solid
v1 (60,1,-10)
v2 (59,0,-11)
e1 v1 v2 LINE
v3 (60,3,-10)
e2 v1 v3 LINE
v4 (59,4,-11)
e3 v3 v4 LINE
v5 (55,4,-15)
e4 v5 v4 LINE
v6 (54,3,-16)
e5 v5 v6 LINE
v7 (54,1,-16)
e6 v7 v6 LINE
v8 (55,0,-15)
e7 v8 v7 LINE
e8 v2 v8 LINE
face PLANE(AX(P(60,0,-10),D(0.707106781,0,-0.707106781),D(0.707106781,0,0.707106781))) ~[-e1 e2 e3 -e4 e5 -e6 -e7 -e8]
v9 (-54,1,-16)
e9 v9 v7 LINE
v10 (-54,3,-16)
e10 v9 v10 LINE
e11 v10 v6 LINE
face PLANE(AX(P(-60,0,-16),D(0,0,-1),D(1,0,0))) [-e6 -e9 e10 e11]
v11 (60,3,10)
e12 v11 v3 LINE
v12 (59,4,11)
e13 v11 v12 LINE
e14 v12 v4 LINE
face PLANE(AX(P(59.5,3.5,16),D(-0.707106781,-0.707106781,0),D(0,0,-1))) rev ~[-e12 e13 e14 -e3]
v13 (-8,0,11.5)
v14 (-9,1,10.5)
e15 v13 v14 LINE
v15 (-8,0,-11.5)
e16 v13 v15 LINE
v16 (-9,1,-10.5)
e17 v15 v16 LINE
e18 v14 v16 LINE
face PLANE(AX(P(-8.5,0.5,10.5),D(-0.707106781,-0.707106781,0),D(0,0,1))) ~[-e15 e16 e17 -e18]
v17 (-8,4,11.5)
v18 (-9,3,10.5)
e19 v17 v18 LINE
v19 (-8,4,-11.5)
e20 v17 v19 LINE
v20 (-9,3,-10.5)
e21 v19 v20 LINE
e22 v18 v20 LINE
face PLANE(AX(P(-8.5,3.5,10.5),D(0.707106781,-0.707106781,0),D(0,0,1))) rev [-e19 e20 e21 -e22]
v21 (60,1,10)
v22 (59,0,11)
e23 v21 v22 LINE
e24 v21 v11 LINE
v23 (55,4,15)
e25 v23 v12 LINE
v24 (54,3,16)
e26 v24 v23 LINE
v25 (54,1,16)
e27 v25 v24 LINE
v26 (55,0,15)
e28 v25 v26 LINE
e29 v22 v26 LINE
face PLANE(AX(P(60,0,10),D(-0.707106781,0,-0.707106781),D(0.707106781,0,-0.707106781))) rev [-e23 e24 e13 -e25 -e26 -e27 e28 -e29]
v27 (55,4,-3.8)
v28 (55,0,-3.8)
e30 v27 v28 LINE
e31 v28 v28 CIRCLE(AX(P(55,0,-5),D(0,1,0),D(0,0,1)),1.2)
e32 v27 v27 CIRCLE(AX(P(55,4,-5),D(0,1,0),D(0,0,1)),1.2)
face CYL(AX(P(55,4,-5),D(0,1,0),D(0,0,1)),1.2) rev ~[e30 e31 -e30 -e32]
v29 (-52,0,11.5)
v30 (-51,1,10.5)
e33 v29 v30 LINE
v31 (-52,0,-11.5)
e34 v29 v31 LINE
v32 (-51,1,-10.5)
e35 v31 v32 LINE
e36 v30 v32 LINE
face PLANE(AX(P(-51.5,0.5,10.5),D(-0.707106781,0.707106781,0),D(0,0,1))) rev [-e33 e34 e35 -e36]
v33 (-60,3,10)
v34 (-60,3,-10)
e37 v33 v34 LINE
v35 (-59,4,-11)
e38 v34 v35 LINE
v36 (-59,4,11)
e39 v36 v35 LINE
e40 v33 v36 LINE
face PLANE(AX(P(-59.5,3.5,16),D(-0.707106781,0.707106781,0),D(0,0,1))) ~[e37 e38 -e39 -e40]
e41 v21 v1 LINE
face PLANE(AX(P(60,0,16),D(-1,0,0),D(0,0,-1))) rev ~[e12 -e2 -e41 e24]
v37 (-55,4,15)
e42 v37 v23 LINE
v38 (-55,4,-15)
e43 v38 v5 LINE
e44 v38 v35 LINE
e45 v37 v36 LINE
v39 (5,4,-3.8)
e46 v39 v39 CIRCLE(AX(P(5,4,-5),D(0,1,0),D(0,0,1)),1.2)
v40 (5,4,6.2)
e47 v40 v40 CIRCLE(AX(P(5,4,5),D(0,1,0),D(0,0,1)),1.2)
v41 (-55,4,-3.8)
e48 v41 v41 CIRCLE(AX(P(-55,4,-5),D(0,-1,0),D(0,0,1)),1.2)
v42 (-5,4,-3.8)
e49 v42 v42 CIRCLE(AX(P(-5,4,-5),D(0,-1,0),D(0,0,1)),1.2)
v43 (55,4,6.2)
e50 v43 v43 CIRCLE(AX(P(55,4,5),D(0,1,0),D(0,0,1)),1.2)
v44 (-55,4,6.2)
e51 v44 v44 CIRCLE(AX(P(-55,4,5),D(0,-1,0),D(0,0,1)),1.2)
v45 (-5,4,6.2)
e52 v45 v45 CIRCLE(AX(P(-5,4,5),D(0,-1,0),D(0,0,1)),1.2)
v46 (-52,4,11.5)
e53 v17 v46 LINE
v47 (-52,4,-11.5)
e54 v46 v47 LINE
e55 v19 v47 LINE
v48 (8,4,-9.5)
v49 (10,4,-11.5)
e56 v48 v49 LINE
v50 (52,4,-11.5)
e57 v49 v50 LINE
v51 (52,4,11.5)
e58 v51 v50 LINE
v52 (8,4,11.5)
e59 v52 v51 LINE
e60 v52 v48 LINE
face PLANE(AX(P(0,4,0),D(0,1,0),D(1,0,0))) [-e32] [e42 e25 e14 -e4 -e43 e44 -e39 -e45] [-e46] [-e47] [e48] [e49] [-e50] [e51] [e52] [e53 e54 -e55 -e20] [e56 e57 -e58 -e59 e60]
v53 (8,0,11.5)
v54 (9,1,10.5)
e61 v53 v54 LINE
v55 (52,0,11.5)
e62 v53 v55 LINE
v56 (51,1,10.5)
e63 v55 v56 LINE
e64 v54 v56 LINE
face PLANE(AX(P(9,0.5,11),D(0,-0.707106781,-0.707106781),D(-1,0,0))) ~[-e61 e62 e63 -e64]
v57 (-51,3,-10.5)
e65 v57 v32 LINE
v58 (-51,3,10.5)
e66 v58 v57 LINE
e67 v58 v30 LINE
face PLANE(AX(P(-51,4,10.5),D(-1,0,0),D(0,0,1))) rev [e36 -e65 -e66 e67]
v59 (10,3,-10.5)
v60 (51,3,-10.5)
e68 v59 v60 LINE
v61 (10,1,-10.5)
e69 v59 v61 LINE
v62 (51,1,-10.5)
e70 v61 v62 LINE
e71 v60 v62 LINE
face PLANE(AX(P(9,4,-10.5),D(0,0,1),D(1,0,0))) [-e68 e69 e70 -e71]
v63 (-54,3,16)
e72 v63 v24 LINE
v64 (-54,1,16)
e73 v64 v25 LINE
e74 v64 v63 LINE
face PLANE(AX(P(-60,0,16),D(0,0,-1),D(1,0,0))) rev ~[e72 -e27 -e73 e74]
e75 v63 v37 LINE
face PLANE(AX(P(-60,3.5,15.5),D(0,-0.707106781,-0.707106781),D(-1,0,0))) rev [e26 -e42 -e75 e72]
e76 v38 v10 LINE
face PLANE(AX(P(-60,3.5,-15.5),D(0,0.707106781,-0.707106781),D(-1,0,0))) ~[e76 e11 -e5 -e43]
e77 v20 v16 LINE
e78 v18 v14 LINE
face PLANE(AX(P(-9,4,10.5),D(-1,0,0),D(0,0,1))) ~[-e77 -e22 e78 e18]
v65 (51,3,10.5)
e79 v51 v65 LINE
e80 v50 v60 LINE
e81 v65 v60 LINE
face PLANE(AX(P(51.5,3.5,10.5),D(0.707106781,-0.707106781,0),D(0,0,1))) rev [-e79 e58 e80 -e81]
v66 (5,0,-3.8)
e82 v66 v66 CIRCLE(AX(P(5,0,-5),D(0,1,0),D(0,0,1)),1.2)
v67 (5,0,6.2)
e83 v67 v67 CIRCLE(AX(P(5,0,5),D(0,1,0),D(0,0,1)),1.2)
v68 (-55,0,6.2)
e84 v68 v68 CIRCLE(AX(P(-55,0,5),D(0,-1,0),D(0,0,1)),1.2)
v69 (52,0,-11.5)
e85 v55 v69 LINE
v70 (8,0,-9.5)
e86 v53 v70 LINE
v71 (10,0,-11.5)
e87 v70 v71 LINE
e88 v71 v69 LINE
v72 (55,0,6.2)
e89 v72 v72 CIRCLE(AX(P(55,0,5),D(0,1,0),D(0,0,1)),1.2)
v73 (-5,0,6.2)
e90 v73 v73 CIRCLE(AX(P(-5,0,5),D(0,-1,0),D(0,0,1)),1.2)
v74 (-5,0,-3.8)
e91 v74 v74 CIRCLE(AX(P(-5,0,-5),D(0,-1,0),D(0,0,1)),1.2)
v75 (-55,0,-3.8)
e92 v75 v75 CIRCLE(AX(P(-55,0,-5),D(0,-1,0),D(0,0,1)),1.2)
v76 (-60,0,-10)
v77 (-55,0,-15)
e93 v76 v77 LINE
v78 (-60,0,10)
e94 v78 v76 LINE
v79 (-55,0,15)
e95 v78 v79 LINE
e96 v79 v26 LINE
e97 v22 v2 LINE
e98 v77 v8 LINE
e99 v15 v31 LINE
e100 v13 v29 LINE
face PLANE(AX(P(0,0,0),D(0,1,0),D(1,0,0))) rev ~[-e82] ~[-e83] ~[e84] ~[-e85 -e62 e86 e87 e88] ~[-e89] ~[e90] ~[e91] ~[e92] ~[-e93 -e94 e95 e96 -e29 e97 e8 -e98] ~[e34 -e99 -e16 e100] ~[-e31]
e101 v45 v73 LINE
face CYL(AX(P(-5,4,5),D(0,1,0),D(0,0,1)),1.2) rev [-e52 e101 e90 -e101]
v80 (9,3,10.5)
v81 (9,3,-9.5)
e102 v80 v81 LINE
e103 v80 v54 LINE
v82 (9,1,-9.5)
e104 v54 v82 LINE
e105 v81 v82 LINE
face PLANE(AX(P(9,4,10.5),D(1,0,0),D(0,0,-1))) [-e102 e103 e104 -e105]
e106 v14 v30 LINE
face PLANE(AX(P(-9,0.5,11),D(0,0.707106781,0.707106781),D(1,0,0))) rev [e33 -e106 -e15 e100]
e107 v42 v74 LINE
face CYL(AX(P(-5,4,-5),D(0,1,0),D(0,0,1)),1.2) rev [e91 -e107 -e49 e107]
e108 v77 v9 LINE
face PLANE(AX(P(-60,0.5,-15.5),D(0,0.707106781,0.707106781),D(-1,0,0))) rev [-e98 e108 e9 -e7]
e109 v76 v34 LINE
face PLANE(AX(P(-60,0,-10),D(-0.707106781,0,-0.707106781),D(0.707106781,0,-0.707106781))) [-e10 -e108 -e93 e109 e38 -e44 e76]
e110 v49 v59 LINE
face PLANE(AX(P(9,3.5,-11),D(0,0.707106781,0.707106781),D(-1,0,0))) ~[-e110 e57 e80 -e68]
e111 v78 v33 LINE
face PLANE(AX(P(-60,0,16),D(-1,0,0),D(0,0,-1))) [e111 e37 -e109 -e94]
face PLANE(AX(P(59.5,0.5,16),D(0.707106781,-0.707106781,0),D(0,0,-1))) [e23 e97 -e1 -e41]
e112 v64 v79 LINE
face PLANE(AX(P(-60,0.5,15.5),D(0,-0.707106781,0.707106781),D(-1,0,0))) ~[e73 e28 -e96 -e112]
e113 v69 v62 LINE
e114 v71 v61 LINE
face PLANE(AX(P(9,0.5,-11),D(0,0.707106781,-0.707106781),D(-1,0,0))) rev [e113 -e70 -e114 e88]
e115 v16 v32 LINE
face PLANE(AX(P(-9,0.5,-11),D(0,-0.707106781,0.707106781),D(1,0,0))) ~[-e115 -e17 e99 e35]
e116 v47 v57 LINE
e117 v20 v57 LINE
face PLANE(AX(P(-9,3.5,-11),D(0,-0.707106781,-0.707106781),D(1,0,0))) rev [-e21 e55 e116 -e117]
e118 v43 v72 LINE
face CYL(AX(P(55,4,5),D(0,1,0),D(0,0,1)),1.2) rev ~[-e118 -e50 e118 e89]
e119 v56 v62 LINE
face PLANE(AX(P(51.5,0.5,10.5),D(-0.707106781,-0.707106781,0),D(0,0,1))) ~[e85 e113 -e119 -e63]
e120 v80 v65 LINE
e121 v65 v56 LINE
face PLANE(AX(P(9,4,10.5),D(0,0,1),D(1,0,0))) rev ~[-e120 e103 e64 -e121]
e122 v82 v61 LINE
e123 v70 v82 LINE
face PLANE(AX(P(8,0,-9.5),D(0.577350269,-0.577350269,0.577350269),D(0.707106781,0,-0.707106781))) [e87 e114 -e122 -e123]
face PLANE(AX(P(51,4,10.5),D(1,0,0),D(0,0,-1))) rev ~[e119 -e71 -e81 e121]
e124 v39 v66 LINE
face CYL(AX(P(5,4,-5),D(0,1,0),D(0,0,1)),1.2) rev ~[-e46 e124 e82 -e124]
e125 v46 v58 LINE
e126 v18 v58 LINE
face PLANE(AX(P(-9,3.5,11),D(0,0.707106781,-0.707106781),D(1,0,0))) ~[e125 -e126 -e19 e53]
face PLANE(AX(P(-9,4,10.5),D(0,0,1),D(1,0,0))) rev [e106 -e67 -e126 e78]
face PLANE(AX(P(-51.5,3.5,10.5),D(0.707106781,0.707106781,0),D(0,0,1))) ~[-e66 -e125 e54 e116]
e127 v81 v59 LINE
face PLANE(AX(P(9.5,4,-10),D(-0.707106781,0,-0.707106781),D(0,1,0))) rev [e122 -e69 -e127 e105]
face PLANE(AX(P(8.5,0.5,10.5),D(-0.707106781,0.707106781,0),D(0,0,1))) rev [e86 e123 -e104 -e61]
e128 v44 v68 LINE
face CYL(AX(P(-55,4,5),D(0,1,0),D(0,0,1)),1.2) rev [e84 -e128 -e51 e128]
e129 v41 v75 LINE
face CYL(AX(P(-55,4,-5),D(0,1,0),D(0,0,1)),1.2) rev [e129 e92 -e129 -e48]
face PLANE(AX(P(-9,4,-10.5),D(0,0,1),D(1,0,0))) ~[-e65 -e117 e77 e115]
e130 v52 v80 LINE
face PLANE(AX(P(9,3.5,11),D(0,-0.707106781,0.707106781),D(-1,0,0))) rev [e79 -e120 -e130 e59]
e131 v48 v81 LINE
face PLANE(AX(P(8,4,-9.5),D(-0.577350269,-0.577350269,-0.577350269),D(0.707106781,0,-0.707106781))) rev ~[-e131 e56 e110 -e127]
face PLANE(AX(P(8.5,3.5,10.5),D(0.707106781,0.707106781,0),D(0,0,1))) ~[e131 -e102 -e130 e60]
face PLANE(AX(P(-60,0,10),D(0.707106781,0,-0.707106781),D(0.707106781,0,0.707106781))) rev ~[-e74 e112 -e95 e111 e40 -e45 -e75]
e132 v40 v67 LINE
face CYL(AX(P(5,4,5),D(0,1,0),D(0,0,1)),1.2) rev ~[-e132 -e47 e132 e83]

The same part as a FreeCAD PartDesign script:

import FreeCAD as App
import Part
import Sketcher
from FreeCAD import Vector
Q = App.Units.Quantity


def edges_at(feature, points):
    """Names of the edges that pass closest to the given points."""
    edges = feature.Shape.Edges
    near = lambda p: min(range(len(edges)), key=lambda i: edges[i].distToShape(Part.Vertex(*p))[0])
    return sorted({f"Edge{near(p) + 1}" for p in points})


def add_polygon(sketch, points):
    """Adds a closed chain of lines whose ends are joined by coincident constraints."""
    first, n = sketch.GeometryCount, len(points)
    for a, b in zip(points, points[1:] + points[:1]):
        sketch.addGeometry(Part.LineSegment(App.Vector(*a, 0), App.Vector(*b, 0)), False)
    for i in range(n):
        sketch.addConstraint(Sketcher.Constraint("Coincident", first + i, 2, first + (i + 1) % n, 1))

doc = App.newDocument("Part")
body = doc.addObject("PartDesign::Body", "Body")

sketch1 = body.newObject("Sketcher::SketchObject", "Sketch")
sketch1.AttachmentSupport = (doc.getObject("XZ_Plane"), [""])
sketch1.MapMode = "FlatFace"
add_polygon(sketch1, [(-60, -16), (-60, 16), (60, 16), (60, -16)])
sketch1.addConstraint([
    Sketcher.Constraint("Vertical", 0),
    Sketcher.Constraint("Horizontal", 1),
    Sketcher.Constraint("Vertical", 2),
    Sketcher.Constraint("Horizontal", 3),
    Sketcher.Constraint("Symmetric", 0, 2, 2, 2, -1, 1),
    Sketcher.Constraint("DistanceX", 1, 1, 1, 2, Q("120 mm")),
    Sketcher.Constraint("DistanceY", 0, 1, 0, 2, Q("32 mm")),
])
pad1 = body.newObject("PartDesign::Pad", "Pad")
pad1.Profile = sketch1
pad1.Length = 4
pad1.Reversed = True

sketch2 = body.newObject("Sketcher::SketchObject", "Sketch001")
sketch2.AttachmentSupport = (doc.getObject("XZ_Plane"), [""])
sketch2.MapMode = "FlatFace"
sketch2.AttachmentOffset = App.Placement(Vector(0, 0, -4), App.Rotation())
sketch2.addGeometry(Part.Circle(Vector(55, -5, 0), Vector(0, 0, 1), 1.2), False)
sketch2.addGeometry(Part.Circle(Vector(55, 5, 0), Vector(0, 0, 1), 1.2), False)
sketch2.addGeometry(Part.Circle(Vector(5, -5, 0), Vector(0, 0, 1), 1.2), False)
sketch2.addGeometry(Part.Circle(Vector(5, 5, 0), Vector(0, 0, 1), 1.2), False)
add_polygon(sketch2, [(9, -10.5), (9, 10.5), (51, 10.5), (51, -10.5)])
sketch2.addConstraint([
    Sketcher.Constraint("Vertical", 4),
    Sketcher.Constraint("Horizontal", 5),
    Sketcher.Constraint("Vertical", 6),
    Sketcher.Constraint("Horizontal", 7),
    Sketcher.Constraint("Equal", 0, 1),
    Sketcher.Constraint("Equal", 1, 2),
    Sketcher.Constraint("Equal", 2, 3),
    Sketcher.Constraint("Symmetric", 0, 3, 1, 3, -1),
    Sketcher.Constraint("Symmetric", 2, 3, 3, 3, -1),
    Sketcher.Constraint("Horizontal", 0, 3, 2, 3),
    Sketcher.Constraint("Diameter", 0, Q("2.4 mm")),
    Sketcher.Constraint("DistanceX", 5, 1, 5, 2, Q("42 mm")),
    Sketcher.Constraint("DistanceY", 4, 1, 4, 2, Q("21 mm")),
    Sketcher.Constraint("DistanceX", -1, 1, 0, 3, Q("55 mm")),
    Sketcher.Constraint("DistanceY", 0, 3, -1, 1, Q("5 mm")),
    Sketcher.Constraint("DistanceX", -1, 1, 2, 3, Q("5 mm")),
    Sketcher.Constraint("DistanceX", -1, 1, 4, 2, Q("9 mm")),
    Sketcher.Constraint("DistanceY", -1, 1, 4, 2, Q("10.5 mm")),
])
pocket1 = body.newObject("PartDesign::Pocket", "Pocket")
pocket1.Profile = sketch2
pocket1.Length = 4
pocket1.Reversed = True
doc.recompute()

mirrored = body.newObject("PartDesign::Mirrored", "Mirrored")
mirrored.Originals = [pocket1]
mirrored.MirrorPlane = (doc.getObject("YZ_Plane"), [""])
body.Tip = mirrored
doc.recompute()

chamfer = body.newObject("PartDesign::Chamfer", "Chamfer")
chamfer.Base = (mirrored, edges_at(mirrored, [
    (-60, 4, 0),
    (0, 4, 16),
    (9, 0, 0),
    (30, 0, -10.5),
    (9, 2, -10.5),
    (51, 0, 0),
    (30, 0, 10.5),
    (9, 4, 0),
    (30, 4, 10.5),
    (51, 4, 0),
    (30, 4, -10.5),
    (60, 4, 0),
    (0, 0, 16),
    (0, 0, -16),
    (60, 0, 0),
    (-9, 4, 0),
    (-30, 4, 10.5),
    (-51, 4, 0),
    (-30, 4, -10.5),
    (-9, 0, 0),
    (-30, 0, 10.5),
    (-51, 0, 0),
    (-30, 0, -10.5),
    (0, 4, -16),
    (60, 2, 16),
    (-60, 2, 16),
    (-60, 2, -16),
    (60, 2, -16),
]))
chamfer.Size = 1

sketch3 = body.newObject("Sketcher::SketchObject", "Sketch002")
sketch3.AttachmentSupport = (doc.getObject("XZ_Plane"), [""])
sketch3.MapMode = "FlatFace"
add_polygon(sketch3, [(-60, 10), (-54, 16), (-63, 19)])
add_polygon(sketch3, [(-54, -16), (-60, -10), (-63, -18)])
sketch3.addConstraint([
    Sketcher.Constraint("Symmetric", 2, 2, 3, 2, -1),
    Sketcher.Constraint("Symmetric", 0, 2, 5, 2, -1),
    Sketcher.Constraint("Perpendicular", 0, 3),
    Sketcher.Constraint("DistanceX", 0, 2, -1, 1, Q("54 mm")),
    Sketcher.Constraint("DistanceY", -1, 1, 0, 2, Q("16 mm")),
    Sketcher.Constraint("DistanceX", 2, 2, -1, 1, Q("60 mm")),
    Sketcher.Constraint("Distance", 1, Q("9.747111 mm")),
    Sketcher.Constraint("Distance", 5, Q("8.770029 mm")),
    Sketcher.Constraint("DistanceX", 1, 2, 4, 2, Q("0.610862 mm")),
    Sketcher.Constraint("Distance", 2, Q("9.841476 mm")),
])
pocket2 = body.newObject("PartDesign::Pocket", "Pocket001")
pocket2.Profile = sketch3
pocket2.Length = 10
doc.recompute()

mirrored2 = body.newObject("PartDesign::Mirrored", "Mirrored001")
mirrored2.Originals = [pocket2]
mirrored2.MirrorPlane = (doc.getObject("YZ_Plane"), [""])
body.Tip = mirrored2

doc.recompute()
